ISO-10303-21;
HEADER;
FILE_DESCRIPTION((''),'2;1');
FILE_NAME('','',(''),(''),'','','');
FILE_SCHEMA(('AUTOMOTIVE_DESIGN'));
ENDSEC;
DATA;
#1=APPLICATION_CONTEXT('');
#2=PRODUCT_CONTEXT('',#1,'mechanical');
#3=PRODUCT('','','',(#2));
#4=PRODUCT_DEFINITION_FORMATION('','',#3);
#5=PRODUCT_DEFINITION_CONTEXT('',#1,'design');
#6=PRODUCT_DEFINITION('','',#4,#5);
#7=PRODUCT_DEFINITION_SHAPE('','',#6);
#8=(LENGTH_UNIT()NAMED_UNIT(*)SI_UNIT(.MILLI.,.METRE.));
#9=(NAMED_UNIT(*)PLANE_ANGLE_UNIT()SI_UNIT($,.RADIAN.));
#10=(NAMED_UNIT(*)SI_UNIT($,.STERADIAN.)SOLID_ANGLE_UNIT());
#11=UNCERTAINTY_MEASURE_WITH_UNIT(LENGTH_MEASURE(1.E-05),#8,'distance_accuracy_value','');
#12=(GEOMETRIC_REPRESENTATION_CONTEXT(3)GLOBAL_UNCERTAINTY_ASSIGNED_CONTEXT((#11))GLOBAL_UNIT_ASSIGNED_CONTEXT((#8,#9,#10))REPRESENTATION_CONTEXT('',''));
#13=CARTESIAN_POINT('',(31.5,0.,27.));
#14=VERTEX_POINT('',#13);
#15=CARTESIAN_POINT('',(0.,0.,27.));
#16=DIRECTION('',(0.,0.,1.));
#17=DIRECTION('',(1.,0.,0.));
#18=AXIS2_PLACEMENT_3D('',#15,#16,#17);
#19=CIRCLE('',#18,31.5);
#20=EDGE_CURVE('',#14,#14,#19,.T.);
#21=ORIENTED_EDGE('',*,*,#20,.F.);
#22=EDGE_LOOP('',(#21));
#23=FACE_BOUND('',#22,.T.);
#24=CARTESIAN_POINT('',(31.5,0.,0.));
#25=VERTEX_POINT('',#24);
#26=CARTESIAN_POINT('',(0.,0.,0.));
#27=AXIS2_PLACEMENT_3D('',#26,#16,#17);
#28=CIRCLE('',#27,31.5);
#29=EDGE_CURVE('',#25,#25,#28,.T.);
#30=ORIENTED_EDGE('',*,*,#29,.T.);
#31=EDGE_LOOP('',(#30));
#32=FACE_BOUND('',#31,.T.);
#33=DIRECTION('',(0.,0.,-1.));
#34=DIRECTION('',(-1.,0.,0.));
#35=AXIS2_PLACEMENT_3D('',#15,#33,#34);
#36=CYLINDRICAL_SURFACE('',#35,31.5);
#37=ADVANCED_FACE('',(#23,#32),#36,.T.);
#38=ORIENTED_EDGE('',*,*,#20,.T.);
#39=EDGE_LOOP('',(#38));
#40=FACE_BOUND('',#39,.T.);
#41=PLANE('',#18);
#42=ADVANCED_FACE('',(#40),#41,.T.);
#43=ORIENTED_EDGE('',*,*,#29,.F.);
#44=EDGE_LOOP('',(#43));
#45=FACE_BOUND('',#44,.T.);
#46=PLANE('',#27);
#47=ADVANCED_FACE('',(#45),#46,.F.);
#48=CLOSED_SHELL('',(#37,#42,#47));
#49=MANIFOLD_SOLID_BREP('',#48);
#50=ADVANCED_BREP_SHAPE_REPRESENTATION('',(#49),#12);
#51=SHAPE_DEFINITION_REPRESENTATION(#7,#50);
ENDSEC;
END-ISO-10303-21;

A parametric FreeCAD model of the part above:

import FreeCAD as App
import Part
import Sketcher
Q = App.Units.Quantity

doc = App.newDocument("Part")
body = doc.addObject("PartDesign::Body", "Body")

# Sketch on XY plane
sketch1 = doc.addObject("Sketcher::SketchObject", "Sketch")
body.addObject(sketch1)
sketch1.AttachmentSupport = (doc.XY_Plane, [""])
sketch1.MapMode = "FlatFace"
sketch1.addGeometry(Part.Circle(App.Vector(0, 0, 0), App.Vector(0, 0, 1), 32), False)
sketch1.addConstraint([
    Sketcher.Constraint("Coincident", 0, 3, -1, 1),
    Sketcher.Constraint("Diameter", 0, Q("63 mm")),
])
pad1 = doc.addObject("PartDesign::Pad", "Pad")
body.addObject(pad1)
pad1.Profile = sketch1
pad1.Length = 27

doc.recompute()
